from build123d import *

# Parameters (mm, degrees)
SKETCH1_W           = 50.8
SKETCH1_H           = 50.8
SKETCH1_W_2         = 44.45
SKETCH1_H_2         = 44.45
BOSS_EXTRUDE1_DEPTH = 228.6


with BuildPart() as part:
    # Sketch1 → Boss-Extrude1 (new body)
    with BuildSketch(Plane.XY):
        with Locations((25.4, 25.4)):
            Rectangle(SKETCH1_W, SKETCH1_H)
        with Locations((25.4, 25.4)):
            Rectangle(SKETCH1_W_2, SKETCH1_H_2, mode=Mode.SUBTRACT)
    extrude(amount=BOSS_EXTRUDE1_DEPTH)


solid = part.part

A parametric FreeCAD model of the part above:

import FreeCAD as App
import Part
import Sketcher
from FreeCAD import Vector
Q = App.Units.Quantity


def add_polygon(sketch, points):
    """Adds a closed chain of lines whose ends are joined by coincident constraints."""
    first, n = sketch.GeometryCount, len(points)
    for a, b in zip(points, points[1:] + points[:1]):
        sketch.addGeometry(Part.LineSegment(App.Vector(*a, 0), App.Vector(*b, 0)), False)
    for i in range(n):
        sketch.addConstraint(Sketcher.Constraint("Coincident", first + i, 2, first + (i + 1) % n, 1))

doc = App.newDocument("Part")
params = doc.addObject("Spreadsheet::Sheet", "Params")
for row, (alias, value) in enumerate([
    ("sketch1_width", "2 in"),
    ("sketch1_width2", "1.75 in"),
    ("pad1_length", "9 in"),
], start=1):
    params.set(f"A{row}", alias)
    params.set(f"B{row}", "=" + value)
    params.setAlias(f"B{row}", alias)

body = doc.addObject("PartDesign::Body", "Body")

sketch1 = doc.addObject("Sketcher::SketchObject", "Sketch")
body.addObject(sketch1)
sketch1.AttachmentSupport = (doc.XY_Plane, [""])
sketch1.MapMode = "FlatFace"
add_polygon(sketch1, [(0, 51), (0, 0), (51, 0), (51, 51)])
add_polygon(sketch1, [(48, 3), (3, 3), (3, 48), (48, 48)])
sketch1.addConstraint(Sketcher.Constraint("Vertical", 0))
sketch1.addConstraint(Sketcher.Constraint("Horizontal", 1))
sketch1.addConstraint(Sketcher.Constraint("Vertical", 2))
sketch1.addConstraint(Sketcher.Constraint("Horizontal", 3))
sketch1.addConstraint(Sketcher.Constraint("Horizontal", 4))
sketch1.addConstraint(Sketcher.Constraint("Vertical", 5))
sketch1.addConstraint(Sketcher.Constraint("Horizontal", 6))
sketch1.addConstraint(Sketcher.Constraint("Vertical", 7))
sketch1.addConstraint(Sketcher.Constraint("Coincident", 0, 2, -1, 1))
sketch1.addConstraint(Sketcher.Constraint("Equal", 3, 0))
sketch1.addConstraint(Sketcher.Constraint("Equal", 6, 5))
sketch1.addConstraint(Sketcher.Constraint("DistanceX", 1, 1, 1, 2, Q("2 in")))
sketch1.addConstraint(Sketcher.Constraint("DistanceX", 4, 2, 4, 1, Q("1.75 in")))
sketch1.addConstraint(Sketcher.Constraint("DistanceX", -1, 1, 4, 2, Q("0.125 in")))
sketch1.addConstraint(Sketcher.Constraint("DistanceY", -1, 1, 4, 2, Q("0.125 in")))
sketch1.setExpression("Constraints[19]", "Params.sketch1_width")
sketch1.setExpression("Constraints[20]", "Params.sketch1_width2")
pad1 = doc.addObject("PartDesign::Pad", "Pad")
body.addObject(pad1)
pad1.Profile = sketch1
pad1.setExpression("Length", "Params.pad1_length")

doc.recompute()
